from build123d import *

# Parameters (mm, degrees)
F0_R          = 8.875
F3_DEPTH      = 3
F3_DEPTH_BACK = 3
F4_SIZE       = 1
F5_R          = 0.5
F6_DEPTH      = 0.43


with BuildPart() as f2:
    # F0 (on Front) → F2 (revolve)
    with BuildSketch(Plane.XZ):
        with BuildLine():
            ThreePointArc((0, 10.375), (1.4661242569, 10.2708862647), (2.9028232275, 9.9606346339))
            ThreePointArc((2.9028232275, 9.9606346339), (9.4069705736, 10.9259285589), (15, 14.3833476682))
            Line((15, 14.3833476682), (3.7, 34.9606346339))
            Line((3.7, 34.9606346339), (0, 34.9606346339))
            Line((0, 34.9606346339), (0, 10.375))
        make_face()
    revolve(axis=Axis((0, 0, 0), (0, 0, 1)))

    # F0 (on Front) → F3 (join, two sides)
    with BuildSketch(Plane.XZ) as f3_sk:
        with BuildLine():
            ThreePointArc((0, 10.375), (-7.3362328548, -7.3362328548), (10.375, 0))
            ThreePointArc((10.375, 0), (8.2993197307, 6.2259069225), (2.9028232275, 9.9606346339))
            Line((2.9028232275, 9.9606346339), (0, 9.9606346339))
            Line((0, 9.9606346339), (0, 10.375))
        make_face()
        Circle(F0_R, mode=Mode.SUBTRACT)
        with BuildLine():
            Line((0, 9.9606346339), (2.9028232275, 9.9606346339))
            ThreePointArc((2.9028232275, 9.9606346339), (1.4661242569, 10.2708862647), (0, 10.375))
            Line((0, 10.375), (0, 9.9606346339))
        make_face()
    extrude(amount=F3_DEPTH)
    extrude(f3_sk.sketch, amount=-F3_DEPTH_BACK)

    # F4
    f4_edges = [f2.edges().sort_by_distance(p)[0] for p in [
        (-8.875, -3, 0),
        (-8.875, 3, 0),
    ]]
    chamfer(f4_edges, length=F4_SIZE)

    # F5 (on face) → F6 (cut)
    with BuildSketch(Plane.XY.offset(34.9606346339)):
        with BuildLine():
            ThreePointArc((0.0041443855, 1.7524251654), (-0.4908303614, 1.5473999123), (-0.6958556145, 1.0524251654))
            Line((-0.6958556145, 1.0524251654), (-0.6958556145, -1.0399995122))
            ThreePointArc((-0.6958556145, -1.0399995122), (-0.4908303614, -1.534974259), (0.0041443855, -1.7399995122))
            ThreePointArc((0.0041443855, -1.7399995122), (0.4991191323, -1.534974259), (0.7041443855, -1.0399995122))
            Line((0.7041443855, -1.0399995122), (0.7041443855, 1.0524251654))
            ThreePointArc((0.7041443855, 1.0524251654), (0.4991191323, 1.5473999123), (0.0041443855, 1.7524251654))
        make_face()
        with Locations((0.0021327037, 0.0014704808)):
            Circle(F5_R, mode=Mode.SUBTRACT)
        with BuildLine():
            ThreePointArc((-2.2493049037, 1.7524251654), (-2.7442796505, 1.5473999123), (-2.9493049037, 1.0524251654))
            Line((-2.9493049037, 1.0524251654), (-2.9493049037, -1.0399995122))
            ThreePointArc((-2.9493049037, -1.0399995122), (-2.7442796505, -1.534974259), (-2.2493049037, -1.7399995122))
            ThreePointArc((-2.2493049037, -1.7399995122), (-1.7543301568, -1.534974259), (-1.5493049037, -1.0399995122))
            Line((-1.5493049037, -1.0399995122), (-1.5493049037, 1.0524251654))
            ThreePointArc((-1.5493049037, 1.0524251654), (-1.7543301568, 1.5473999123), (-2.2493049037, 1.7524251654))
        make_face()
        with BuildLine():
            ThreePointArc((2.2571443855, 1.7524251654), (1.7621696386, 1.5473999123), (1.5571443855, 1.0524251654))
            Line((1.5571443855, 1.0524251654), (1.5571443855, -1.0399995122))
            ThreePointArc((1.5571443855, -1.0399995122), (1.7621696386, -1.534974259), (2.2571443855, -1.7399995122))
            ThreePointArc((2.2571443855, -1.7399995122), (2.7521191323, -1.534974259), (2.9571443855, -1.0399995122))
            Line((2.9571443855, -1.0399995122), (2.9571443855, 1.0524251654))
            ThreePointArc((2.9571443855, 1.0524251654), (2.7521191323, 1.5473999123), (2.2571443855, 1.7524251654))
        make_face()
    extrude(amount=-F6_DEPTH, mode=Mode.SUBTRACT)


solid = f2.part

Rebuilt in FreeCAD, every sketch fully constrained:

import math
import FreeCAD as App
import Part
import Sketcher

V = App.Vector


def edges_at(feature, points):
    """Names of the edges that pass closest to the given points."""
    edges = feature.Shape.Edges
    near = lambda p: min(range(len(edges)), key=lambda i: edges[i].distToShape(Part.Vertex(*p))[0])
    return sorted({f"Edge{near(p) + 1}" for p in points})

doc = App.newDocument("Part")
body = doc.addObject("PartDesign::Body", "Body")

# Sketch on XZ plane
sketch1 = body.newObject("Sketcher::SketchObject", "Sketch")
sketch1.AttachmentSupport = (doc.getObject("XZ_Plane"), [""])
sketch1.MapMode = "FlatFace"
sketch1.addGeometry(Part.ArcOfCircle(Part.Circle(V(0, 0, 0), V(0, 0, 1), 10.4), math.radians(73.75), math.radians(90)), False)
sketch1.addGeometry(Part.ArcOfCircle(Part.Circle(V(3.8, 26.2, 0), V(0, 0, 1), 16.3), math.radians(-93), math.radians(-47)), False)
sketch1.addGeometry(Part.LineSegment(V(15, 14.4, 0), V(3.7, 35, 0)), False)
sketch1.addGeometry(Part.LineSegment(V(3.7, 35, 0), V(0, 35, 0)), False)
sketch1.addGeometry(Part.LineSegment(V(0, 35, 0), V(0, 10.4, 0)), False)
sketch1.addConstraint(Sketcher.Constraint("Coincident", 0, 1, 1, 1))
sketch1.addConstraint(Sketcher.Constraint("Coincident", 1, 2, 2, 1))
sketch1.addConstraint(Sketcher.Constraint("Coincident", 2, 2, 3, 1))
sketch1.addConstraint(Sketcher.Constraint("Coincident", 3, 2, 4, 1))
sketch1.addConstraint(Sketcher.Constraint("Coincident", 4, 2, 0, 2))
sketch1.addConstraint(Sketcher.Constraint("Horizontal", 3))
sketch1.addConstraint(Sketcher.Constraint("Vertical", 4))
sketch1.addConstraint(Sketcher.Constraint("Coincident", 0, 3, -1, 1))
sketch1.addConstraint(Sketcher.Constraint("PointOnObject", 3, 2, -2))
sketch1.addConstraint(Sketcher.Constraint("DistanceX", 3, 2, 3, 1, 3.7))
sketch1.addConstraint(Sketcher.Constraint("DistanceX", -1, 1, 1, 2, 15.0))
sketch1.addConstraint(Sketcher.Constraint("Radius", 0, 10.375))
sketch1.addConstraint(Sketcher.Constraint("DistanceY", 0, 1, 2, 2, 25.0))
sketch1.addConstraint(Sketcher.Constraint("Radius", 1, 16.294124))
sketch1.addConstraint(Sketcher.Constraint("DistanceY", 4, 2, 4, 1, 24.585635))
sketch1.addConstraint(Sketcher.Constraint("DistanceX", -1, 1, 1, 3, 3.812051))
revolution = body.newObject("PartDesign::Revolution", "Revolution")
revolution.Profile = sketch1
revolution.ReferenceAxis = (sketch1, ["V_Axis"])
revolution.Angle = 360

# Sketch on XZ plane
sketch2 = body.newObject("Sketcher::SketchObject", "Sketch001")
sketch2.AttachmentSupport = (doc.getObject("XZ_Plane"), [""])
sketch2.MapMode = "FlatFace"
sketch2.addGeometry(Part.ArcOfCircle(Part.Circle(V(0, 0, 0), V(0, 0, 1), 10.4), math.radians(90), math.radians(434)), False)
sketch2.addGeometry(Part.ArcOfCircle(Part.Circle(V(0, 0, 0), V(0, 0, 1), 10.4), math.radians(73.75), math.radians(90)), False)
sketch2.addGeometry(Part.Circle(V(0, 0, 0), V(0, 0, 1), 8.9), False)
sketch2.addConstraint(Sketcher.Constraint("Tangent", 0, 1, 1, 2))
sketch2.addConstraint(Sketcher.Constraint("Coincident", 1, 1, 0, 2))
sketch2.addConstraint(Sketcher.Constraint("Coincident", 0, 3, -1, 1))
sketch2.addConstraint(Sketcher.Constraint("Coincident", 2, 3, -1, 1))
sketch2.addConstraint(Sketcher.Constraint("PointOnObject", 0, 1, -2))
sketch2.addConstraint(Sketcher.Constraint("Diameter", 2, 17.75))
sketch2.addConstraint(Sketcher.Constraint("Radius", 0, 10.375))
sketch2.addConstraint(Sketcher.Constraint("DistanceX", -1, 1, 1, 1, 2.902823))
pad1 = body.newObject("PartDesign::Pad", "Pad")
pad1.Profile = sketch2
pad1.Type = "TwoLengths"
pad1.Length = 3
pad1.Length2 = 3
doc.recompute()

chamfer = body.newObject("PartDesign::Chamfer", "Chamfer")
chamfer.Base = (pad1, edges_at(pad1, [(-8.875, -3, 0), (-8.875, 3, 0)]))
chamfer.Size = 1

# Sketch on XY plane
sketch3 = body.newObject("Sketcher::SketchObject", "Sketch002")
sketch3.AttachmentSupport = (doc.getObject("XY_Plane"), [""])
sketch3.MapMode = "FlatFace"
sketch3.AttachmentOffset = App.Placement(V(0, 0, 34.960635), App.Rotation())
sketch3.addGeometry(Part.ArcOfCircle(Part.Circle(V(0, 1.1, 0), V(0, 0, 1), 0.7), math.radians(90), math.radians(180)), False)
sketch3.addGeometry(Part.LineSegment(V(-0.7, 1.1, 0), V(-0.7, -1, 0)), False)
sketch3.addGeometry(Part.ArcOfCircle(Part.Circle(V(0, -1, 0), V(0, 0, 1), 0.7), math.radians(180), math.radians(270)), False)
sketch3.addGeometry(Part.ArcOfCircle(Part.Circle(V(0, -1, 0), V(0, 0, 1), 0.7), math.radians(-90), math.radians(0)), False)
sketch3.addGeometry(Part.LineSegment(V(0.7, -1, 0), V(0.7, 1.1, 0)), False)
sketch3.addGeometry(Part.ArcOfCircle(Part.Circle(V(0, 1.1, 0), V(0, 0, 1), 0.7), math.radians(0), math.radians(90)), False)
sketch3.addGeometry(Part.Circle(V(0, 0, 0), V(0, 0, 1), 0.5), False)
sketch3.addGeometry(Part.ArcOfCircle(Part.Circle(V(-2.2, 1.1, 0), V(0, 0, 1), 0.7), math.radians(90), math.radians(180)), False)
sketch3.addGeometry(Part.LineSegment(V(-2.9, 1.1, 0), V(-2.9, -1, 0)), False)
sketch3.addGeometry(Part.ArcOfCircle(Part.Circle(V(-2.2, -1, 0), V(0, 0, 1), 0.7), math.radians(180), math.radians(270)), False)
sketch3.addGeometry(Part.ArcOfCircle(Part.Circle(V(-2.2, -1, 0), V(0, 0, 1), 0.7), math.radians(-90), math.radians(0)), False)
sketch3.addGeometry(Part.LineSegment(V(-1.5, -1, 0), V(-1.5, 1.1, 0)), False)
sketch3.addGeometry(Part.ArcOfCircle(Part.Circle(V(-2.2, 1.1, 0), V(0, 0, 1), 0.7), math.radians(0), math.radians(90)), False)
sketch3.addGeometry(Part.ArcOfCircle(Part.Circle(V(2.3, 1.1, 0), V(0, 0, 1), 0.7), math.radians(90), math.radians(180)), False)
sketch3.addGeometry(Part.LineSegment(V(1.6, 1.1, 0), V(1.6, -1, 0)), False)
sketch3.addGeometry(Part.ArcOfCircle(Part.Circle(V(2.3, -1, 0), V(0, 0, 1), 0.7), math.radians(180), math.radians(270)), False)
sketch3.addGeometry(Part.ArcOfCircle(Part.Circle(V(2.3, -1, 0), V(0, 0, 1), 0.7), math.radians(-90), math.radians(0)), False)
sketch3.addGeometry(Part.LineSegment(V(3, -1, 0), V(3, 1.1, 0)), False)
sketch3.addGeometry(Part.ArcOfCircle(Part.Circle(V(2.3, 1.1, 0), V(0, 0, 1), 0.7), math.radians(0), math.radians(90)), False)
sketch3.addConstraint(Sketcher.Constraint("Tangent", 0, 2, 1, 1))
sketch3.addConstraint(Sketcher.Constraint("Tangent", 1, 2, 2, 1))
sketch3.addConstraint(Sketcher.Constraint("Tangent", 2, 2, 3, 1))
sketch3.addConstraint(Sketcher.Constraint("Tangent", 3, 2, 4, 1))
sketch3.addConstraint(Sketcher.Constraint("Tangent", 4, 2, 5, 1))
sketch3.addConstraint(Sketcher.Constraint("Tangent", 5, 2, 0, 1))
sketch3.addConstraint(Sketcher.Constraint("Tangent", 7, 2, 8, 1))
sketch3.addConstraint(Sketcher.Constraint("Tangent", 8, 2, 9, 1))
sketch3.addConstraint(Sketcher.Constraint("Tangent", 9, 2, 10, 1))
sketch3.addConstraint(Sketcher.Constraint("Tangent", 10, 2, 11, 1))
sketch3.addConstraint(Sketcher.Constraint("Tangent", 11, 2, 12, 1))
sketch3.addConstraint(Sketcher.Constraint("Tangent", 12, 2, 7, 1))
sketch3.addConstraint(Sketcher.Constraint("Tangent", 13, 2, 14, 1))
sketch3.addConstraint(Sketcher.Constraint("Tangent", 14, 2, 15, 1))
sketch3.addConstraint(Sketcher.Constraint("Tangent", 15, 2, 16, 1))
sketch3.addConstraint(Sketcher.Constraint("Tangent", 16, 2, 17, 1))
sketch3.addConstraint(Sketcher.Constraint("Tangent", 17, 2, 18, 1))
sketch3.addConstraint(Sketcher.Constraint("Tangent", 18, 2, 13, 1))
sketch3.addConstraint(Sketcher.Constraint("Vertical", 1))
sketch3.addConstraint(Sketcher.Constraint("Vertical", 4))
sketch3.addConstraint(Sketcher.Constraint("Vertical", 8))
sketch3.addConstraint(Sketcher.Constraint("Vertical", 11))
sketch3.addConstraint(Sketcher.Constraint("Vertical", 14))
sketch3.addConstraint(Sketcher.Constraint("Vertical", 17))
sketch3.addConstraint(Sketcher.Constraint("Equal", 0, 2))
sketch3.addConstraint(Sketcher.Constraint("Equal", 2, 3))
sketch3.addConstraint(Sketcher.Constraint("Equal", 5, 7))
sketch3.addConstraint(Sketcher.Constraint("Equal", 7, 9))
sketch3.addConstraint(Sketcher.Constraint("Equal", 9, 10))
sketch3.addConstraint(Sketcher.Constraint("Equal", 12, 13))
sketch3.addConstraint(Sketcher.Constraint("Equal", 13, 15))
sketch3.addConstraint(Sketcher.Constraint("Equal", 15, 16))
sketch3.addConstraint(Sketcher.Constraint("Horizontal", 5, 3, 7, 3))
sketch3.addConstraint(Sketcher.Constraint("Horizontal", 3, 3, 9, 3))
sketch3.addConstraint(Sketcher.Constraint("Horizontal", 12, 3, 13, 3))
sketch3.addConstraint(Sketcher.Constraint("Horizontal", 10, 3, 15, 3))
sketch3.addConstraint(Sketcher.Constraint("Vertical", 5, 3, 2, 2))
sketch3.addConstraint(Sketcher.Constraint("Vertical", 2, 2, 5, 2))
sketch3.addConstraint(Sketcher.Constraint("Vertical", 12, 3, 9, 2))
sketch3.addConstraint(Sketcher.Constraint("Vertical", 9, 2, 12, 2))
sketch3.addConstraint(Sketcher.Constraint("Vertical", 18, 3, 15, 2))
sketch3.addConstraint(Sketcher.Constraint("Vertical", 15, 2, 18, 2))
sketch3.addConstraint(Sketcher.Constraint("Diameter", 6, 1.0))
sketch3.addConstraint(Sketcher.Constraint("Radius", 0, 0.7))
sketch3.addConstraint(Sketcher.Constraint("DistanceY", 2, 3, -1, 1, 1.04))
sketch3.addConstraint(Sketcher.Constraint("DistanceX", 5, 3, 13, 3, 2.253))
sketch3.addConstraint(Sketcher.Constraint("DistanceY", 1, 2, 1, 1, 2.092425))
sketch3.addConstraint(Sketcher.Constraint("DistanceY", -1, 1, 6, 3, 0.00147))
sketch3.addConstraint(Sketcher.Constraint("DistanceX", 6, 3, 2, 3, 0.002012))
sketch3.addConstraint(Sketcher.Constraint("DistanceX", 7, 3, 0, 3, 2.253449))
sketch3.addConstraint(Sketcher.Constraint("DistanceX", -1, 1, 0, 3, 0.004144))
pocket1 = body.newObject("PartDesign::Pocket", "Pocket")
pocket1.Profile = sketch3
pocket1.Length = 0.43

doc.recompute()
